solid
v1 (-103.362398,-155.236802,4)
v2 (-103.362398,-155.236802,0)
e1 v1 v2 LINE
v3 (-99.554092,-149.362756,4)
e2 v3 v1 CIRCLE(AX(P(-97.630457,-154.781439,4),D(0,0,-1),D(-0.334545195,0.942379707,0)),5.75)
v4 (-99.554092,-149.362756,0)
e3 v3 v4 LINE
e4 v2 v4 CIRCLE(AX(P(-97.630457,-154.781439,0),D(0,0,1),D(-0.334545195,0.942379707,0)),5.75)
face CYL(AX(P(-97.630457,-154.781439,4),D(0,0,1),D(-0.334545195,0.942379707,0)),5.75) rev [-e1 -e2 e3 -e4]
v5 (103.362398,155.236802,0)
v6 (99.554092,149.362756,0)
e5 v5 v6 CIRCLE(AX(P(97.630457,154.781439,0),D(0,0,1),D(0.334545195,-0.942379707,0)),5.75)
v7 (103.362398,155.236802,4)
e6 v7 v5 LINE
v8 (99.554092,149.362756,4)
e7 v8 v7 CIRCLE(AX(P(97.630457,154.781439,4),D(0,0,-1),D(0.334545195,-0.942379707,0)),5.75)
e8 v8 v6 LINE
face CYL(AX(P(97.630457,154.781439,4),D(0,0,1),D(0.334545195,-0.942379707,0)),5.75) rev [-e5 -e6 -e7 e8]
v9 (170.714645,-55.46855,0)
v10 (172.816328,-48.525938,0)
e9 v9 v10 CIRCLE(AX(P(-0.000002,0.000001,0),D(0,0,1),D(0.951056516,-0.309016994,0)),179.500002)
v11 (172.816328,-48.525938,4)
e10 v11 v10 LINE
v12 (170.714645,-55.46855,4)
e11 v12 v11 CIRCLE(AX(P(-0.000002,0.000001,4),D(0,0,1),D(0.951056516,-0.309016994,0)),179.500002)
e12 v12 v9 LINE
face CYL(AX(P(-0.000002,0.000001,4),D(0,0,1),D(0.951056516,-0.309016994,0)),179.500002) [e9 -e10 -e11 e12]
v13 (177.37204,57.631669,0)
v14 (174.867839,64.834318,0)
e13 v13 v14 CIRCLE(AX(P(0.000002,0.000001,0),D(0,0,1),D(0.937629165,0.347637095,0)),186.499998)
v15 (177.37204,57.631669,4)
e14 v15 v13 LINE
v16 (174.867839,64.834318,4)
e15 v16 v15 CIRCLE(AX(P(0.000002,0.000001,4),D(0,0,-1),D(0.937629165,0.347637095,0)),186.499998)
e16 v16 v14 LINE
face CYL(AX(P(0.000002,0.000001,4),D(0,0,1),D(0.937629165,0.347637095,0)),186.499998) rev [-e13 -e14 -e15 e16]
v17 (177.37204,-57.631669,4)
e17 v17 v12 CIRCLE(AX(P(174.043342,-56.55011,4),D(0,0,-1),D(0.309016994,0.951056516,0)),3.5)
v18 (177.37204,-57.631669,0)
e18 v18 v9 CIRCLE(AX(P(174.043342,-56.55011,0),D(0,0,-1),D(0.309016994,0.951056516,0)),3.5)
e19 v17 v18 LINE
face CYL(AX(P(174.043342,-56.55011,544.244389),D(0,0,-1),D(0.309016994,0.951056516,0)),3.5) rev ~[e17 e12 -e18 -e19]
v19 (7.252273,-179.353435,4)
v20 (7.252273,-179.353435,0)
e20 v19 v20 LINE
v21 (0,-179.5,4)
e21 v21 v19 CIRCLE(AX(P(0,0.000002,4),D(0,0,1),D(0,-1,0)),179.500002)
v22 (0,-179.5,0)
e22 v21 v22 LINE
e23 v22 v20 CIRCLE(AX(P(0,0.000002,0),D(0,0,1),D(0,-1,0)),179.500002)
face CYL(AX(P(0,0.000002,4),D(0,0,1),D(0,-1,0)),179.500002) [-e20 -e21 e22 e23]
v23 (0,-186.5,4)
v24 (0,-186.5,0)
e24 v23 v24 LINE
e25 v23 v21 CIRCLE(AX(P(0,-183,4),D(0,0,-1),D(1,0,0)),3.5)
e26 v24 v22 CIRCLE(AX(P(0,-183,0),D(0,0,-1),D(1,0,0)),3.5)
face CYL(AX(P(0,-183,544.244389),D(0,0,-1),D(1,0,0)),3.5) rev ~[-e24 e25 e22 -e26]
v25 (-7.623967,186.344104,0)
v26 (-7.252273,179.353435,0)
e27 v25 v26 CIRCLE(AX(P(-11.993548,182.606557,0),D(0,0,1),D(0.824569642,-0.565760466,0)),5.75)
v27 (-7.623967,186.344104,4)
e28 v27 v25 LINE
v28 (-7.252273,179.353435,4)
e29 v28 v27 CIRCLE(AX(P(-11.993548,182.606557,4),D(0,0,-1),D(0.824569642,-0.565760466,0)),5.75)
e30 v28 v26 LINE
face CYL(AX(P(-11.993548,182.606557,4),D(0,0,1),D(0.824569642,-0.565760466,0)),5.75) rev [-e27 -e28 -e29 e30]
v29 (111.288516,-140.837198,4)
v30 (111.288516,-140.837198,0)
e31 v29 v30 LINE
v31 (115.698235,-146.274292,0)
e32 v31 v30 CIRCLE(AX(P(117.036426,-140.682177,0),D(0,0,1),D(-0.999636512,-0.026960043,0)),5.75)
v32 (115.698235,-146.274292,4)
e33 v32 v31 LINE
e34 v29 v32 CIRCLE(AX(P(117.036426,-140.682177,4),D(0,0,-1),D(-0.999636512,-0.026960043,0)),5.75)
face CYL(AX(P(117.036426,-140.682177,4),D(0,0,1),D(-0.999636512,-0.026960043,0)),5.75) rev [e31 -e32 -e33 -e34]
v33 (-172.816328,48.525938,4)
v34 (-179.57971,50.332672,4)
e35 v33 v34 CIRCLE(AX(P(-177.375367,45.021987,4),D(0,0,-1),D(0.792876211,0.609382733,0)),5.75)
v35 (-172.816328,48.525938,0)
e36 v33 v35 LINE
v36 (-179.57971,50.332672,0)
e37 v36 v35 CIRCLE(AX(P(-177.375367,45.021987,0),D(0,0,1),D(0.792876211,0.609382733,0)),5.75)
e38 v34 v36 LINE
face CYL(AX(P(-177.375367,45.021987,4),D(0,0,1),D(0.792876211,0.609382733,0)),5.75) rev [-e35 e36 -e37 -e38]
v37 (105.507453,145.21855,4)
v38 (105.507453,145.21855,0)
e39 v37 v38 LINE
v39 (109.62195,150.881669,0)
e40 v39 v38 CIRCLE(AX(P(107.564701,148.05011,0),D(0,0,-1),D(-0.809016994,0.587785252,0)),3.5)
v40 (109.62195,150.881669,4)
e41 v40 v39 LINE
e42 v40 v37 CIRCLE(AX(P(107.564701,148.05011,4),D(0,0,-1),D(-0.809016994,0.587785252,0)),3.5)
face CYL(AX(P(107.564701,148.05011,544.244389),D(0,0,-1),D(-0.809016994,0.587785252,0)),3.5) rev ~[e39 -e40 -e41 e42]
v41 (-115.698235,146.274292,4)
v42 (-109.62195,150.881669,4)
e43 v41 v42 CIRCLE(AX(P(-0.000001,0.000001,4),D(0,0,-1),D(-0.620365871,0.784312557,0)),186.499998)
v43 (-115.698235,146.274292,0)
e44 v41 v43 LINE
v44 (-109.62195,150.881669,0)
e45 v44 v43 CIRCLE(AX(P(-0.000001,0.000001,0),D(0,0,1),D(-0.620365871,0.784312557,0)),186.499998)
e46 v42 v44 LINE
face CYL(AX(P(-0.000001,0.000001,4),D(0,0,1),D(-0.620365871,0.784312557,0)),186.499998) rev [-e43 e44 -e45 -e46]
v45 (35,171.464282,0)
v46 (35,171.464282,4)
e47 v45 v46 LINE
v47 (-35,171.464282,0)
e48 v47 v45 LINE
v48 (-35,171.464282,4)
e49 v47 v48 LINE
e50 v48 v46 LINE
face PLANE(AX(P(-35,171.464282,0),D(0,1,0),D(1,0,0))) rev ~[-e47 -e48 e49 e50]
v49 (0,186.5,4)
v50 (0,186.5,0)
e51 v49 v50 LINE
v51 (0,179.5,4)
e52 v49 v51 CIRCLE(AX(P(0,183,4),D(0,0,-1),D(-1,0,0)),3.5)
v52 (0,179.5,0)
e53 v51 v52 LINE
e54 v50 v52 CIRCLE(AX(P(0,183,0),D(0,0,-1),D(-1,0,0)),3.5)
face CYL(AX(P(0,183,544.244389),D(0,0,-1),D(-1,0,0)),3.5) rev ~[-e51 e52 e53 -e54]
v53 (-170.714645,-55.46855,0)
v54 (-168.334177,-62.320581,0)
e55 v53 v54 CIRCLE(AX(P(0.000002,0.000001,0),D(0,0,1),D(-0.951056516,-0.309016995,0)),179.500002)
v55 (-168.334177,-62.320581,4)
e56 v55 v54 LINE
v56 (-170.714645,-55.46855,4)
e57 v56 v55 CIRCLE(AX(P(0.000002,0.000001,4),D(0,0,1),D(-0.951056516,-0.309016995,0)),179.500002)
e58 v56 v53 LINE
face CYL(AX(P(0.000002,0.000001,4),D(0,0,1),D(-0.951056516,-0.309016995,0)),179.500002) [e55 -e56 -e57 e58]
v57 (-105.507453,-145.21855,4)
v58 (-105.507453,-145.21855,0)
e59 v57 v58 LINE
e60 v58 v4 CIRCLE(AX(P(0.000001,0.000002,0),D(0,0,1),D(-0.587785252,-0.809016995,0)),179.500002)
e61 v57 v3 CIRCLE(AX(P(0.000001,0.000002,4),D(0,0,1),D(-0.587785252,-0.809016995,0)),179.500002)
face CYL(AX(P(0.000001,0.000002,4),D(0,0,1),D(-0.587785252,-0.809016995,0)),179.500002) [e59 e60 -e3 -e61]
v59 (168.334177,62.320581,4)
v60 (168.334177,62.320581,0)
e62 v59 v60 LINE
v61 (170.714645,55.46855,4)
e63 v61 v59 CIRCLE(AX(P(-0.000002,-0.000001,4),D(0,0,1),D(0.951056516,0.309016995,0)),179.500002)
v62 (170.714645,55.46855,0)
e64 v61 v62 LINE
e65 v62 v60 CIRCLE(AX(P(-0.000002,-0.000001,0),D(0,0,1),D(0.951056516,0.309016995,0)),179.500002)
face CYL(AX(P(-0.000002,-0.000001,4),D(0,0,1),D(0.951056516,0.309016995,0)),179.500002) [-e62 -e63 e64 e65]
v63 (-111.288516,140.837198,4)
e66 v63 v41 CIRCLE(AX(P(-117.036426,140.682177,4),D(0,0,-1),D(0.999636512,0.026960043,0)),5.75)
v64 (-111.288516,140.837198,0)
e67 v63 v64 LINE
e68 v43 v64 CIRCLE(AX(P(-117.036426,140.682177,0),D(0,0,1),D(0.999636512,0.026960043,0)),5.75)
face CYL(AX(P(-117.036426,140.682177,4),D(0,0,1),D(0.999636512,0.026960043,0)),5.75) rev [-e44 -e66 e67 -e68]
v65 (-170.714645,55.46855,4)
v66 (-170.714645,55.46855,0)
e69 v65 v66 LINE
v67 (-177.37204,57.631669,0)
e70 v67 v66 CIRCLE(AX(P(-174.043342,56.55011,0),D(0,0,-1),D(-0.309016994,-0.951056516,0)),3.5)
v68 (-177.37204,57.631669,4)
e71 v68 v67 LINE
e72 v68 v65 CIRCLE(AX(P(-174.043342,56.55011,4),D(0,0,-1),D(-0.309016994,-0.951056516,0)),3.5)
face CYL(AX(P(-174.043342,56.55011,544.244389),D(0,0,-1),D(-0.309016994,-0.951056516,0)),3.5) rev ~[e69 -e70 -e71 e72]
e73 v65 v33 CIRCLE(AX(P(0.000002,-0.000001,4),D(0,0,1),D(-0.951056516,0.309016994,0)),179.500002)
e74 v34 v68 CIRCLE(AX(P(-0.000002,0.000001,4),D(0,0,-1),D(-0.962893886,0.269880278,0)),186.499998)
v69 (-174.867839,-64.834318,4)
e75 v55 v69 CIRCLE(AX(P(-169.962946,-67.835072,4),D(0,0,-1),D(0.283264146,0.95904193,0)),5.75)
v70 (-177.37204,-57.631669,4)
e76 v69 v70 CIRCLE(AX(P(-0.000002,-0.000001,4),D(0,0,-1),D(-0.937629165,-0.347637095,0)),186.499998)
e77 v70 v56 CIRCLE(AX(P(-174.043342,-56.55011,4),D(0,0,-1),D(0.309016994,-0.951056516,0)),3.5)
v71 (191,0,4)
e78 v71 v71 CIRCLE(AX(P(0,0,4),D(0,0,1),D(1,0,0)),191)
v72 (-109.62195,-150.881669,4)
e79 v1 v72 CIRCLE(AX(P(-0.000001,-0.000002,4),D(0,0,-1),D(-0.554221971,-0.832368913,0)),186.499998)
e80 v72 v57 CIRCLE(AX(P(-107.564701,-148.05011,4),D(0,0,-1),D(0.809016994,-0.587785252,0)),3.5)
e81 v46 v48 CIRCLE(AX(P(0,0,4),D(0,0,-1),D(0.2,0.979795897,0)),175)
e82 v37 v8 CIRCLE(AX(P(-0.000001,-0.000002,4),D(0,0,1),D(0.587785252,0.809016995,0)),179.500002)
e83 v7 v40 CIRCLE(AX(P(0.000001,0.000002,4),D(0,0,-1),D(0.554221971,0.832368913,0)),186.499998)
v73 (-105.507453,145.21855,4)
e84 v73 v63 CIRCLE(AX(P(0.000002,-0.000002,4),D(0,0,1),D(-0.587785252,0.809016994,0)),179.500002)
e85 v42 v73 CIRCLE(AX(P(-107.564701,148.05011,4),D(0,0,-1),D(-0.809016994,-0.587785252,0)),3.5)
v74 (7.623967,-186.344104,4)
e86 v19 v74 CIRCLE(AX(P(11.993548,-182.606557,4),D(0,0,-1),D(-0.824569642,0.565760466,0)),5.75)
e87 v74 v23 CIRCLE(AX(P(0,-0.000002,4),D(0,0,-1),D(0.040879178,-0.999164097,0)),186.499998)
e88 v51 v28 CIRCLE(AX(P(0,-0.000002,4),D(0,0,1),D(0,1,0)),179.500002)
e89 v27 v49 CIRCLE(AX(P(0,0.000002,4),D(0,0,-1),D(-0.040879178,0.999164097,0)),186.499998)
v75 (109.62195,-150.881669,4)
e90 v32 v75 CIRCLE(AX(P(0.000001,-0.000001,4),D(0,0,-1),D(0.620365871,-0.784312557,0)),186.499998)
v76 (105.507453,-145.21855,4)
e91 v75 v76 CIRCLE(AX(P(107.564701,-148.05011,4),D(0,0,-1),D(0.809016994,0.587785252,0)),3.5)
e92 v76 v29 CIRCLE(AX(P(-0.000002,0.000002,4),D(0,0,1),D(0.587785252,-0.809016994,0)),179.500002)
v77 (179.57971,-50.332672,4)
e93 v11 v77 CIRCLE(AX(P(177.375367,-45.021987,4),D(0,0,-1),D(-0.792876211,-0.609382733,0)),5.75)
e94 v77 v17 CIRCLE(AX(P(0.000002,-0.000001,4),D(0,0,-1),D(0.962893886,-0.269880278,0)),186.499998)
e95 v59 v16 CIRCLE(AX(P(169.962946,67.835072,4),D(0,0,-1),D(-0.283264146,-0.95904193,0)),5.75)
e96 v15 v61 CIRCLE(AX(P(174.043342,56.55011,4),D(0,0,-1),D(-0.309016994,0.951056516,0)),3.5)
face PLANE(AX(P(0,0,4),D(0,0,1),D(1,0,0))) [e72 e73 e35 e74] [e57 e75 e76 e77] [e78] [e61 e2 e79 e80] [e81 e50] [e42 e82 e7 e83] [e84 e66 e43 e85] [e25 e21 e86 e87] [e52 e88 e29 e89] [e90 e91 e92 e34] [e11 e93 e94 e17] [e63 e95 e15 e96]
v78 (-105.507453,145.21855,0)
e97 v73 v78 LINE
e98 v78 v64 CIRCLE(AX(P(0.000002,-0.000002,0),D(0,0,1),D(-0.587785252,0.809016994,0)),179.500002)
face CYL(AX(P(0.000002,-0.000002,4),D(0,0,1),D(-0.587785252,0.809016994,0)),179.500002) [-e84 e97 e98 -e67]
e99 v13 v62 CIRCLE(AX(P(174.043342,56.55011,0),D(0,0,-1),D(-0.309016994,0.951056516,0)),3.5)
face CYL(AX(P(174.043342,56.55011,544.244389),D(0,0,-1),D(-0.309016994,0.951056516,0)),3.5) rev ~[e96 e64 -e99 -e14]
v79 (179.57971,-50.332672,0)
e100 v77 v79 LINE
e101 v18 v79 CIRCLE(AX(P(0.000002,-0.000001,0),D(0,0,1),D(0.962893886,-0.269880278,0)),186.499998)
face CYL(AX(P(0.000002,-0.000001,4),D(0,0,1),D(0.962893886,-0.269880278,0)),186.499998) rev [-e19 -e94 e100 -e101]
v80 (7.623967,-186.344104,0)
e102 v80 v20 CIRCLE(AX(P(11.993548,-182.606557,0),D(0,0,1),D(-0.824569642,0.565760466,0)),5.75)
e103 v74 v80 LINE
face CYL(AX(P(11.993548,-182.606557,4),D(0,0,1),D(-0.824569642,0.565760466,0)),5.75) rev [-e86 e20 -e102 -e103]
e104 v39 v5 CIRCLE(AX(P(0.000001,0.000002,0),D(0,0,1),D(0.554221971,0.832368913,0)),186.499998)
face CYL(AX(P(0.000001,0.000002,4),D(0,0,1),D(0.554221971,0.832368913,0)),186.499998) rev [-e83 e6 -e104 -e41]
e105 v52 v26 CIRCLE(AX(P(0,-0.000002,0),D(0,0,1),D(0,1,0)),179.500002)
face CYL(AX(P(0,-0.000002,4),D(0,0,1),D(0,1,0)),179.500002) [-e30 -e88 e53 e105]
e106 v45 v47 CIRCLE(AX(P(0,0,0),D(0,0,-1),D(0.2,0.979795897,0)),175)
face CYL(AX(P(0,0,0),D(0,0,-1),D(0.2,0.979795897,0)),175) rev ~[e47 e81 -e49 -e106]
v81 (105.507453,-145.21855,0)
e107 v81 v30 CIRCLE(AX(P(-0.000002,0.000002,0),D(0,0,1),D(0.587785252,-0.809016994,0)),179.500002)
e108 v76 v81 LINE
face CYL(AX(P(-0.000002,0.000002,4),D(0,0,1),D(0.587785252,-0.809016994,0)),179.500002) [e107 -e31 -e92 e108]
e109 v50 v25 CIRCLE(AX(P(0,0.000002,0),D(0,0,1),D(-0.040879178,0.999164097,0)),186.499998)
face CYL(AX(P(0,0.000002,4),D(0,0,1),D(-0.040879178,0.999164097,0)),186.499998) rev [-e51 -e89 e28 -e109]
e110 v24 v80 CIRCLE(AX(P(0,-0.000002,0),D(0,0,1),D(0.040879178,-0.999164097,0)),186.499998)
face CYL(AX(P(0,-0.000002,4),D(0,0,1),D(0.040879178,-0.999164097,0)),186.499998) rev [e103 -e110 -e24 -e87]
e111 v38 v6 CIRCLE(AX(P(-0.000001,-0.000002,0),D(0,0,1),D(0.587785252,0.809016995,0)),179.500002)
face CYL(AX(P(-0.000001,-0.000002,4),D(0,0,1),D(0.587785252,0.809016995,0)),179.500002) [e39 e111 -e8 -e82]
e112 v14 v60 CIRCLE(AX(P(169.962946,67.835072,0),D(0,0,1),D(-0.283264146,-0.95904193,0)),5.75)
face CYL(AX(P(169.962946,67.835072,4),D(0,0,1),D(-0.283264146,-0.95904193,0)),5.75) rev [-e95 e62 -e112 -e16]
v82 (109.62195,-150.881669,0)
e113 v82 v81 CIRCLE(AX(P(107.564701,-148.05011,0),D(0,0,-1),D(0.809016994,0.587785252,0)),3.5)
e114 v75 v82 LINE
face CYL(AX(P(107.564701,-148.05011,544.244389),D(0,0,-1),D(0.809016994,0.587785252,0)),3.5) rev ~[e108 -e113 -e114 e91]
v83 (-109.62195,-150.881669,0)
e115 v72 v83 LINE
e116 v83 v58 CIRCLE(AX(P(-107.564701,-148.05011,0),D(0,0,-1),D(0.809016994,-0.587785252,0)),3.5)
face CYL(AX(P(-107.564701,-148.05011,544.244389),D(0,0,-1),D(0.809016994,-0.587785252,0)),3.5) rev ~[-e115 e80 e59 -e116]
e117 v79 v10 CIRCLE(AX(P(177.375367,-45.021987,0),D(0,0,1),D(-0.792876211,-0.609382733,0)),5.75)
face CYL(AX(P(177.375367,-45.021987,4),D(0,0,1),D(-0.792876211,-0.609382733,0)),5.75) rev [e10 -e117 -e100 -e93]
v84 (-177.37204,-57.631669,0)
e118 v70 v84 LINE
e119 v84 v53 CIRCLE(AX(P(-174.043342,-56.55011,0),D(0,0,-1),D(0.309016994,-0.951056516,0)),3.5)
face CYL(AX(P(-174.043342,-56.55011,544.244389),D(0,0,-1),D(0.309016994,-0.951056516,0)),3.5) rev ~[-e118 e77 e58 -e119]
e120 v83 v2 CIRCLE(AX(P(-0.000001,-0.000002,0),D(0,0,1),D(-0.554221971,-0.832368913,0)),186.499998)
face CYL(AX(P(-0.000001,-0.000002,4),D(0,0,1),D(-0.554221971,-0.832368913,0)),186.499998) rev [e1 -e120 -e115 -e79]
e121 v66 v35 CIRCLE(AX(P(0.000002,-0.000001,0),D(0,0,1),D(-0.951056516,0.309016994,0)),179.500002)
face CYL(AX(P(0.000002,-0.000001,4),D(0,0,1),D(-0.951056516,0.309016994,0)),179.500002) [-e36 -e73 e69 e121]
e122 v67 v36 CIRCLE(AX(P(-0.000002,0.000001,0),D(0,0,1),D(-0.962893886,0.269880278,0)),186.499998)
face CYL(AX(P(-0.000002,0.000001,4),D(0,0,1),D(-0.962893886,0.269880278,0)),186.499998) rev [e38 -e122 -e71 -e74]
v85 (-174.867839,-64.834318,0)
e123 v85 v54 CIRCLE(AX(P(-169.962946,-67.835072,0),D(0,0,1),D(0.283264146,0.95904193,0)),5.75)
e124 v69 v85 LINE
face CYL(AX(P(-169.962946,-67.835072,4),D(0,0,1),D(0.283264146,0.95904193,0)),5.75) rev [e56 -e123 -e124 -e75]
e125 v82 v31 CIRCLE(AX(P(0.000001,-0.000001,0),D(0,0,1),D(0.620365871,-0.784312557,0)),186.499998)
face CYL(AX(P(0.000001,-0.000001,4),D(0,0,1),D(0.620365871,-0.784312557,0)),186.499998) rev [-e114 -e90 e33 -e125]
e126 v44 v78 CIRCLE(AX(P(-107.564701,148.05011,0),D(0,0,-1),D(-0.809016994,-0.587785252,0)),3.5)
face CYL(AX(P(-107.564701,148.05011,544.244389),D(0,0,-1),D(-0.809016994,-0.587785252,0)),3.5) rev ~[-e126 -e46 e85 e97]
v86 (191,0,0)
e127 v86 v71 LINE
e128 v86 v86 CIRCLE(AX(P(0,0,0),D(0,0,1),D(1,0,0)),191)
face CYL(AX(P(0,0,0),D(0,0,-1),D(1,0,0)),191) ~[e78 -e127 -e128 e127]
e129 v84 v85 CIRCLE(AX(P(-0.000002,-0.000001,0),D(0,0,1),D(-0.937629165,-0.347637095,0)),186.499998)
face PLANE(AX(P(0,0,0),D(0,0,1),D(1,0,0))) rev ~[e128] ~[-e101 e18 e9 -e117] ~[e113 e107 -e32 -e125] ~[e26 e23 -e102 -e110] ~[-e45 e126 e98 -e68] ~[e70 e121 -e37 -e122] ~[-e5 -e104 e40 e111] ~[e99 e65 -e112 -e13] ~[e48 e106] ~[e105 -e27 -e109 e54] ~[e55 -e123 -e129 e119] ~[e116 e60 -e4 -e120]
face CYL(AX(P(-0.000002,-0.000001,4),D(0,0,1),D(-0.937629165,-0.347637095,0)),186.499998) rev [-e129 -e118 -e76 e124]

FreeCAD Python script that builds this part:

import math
import FreeCAD as App
import Part
import Sketcher
from FreeCAD import Vector

doc = App.newDocument("Part")
body = doc.addObject("PartDesign::Body", "Body")

# Sketch on XY plane
sketch1 = body.newObject("Sketcher::SketchObject", "Sketch")
sketch1.AttachmentSupport = (doc.getObject("XY_Plane"), [""])
sketch1.MapMode = "FlatFace"
sketch1.addGeometry([
    Part.Circle(Vector(0, 0, 0), Vector(0, 0, 1), 191),
    Part.ArcOfCircle(Part.Circle(Vector(0, 0, 0), Vector(0, 0, 1), 175), math.radians(101.536959), math.radians(438.463041)),
    Part.LineSegment(Vector(-35, 171.464282, 0), Vector(35, 171.464282, 0)),
], False)
sketch1.addConstraint([
    Sketcher.Constraint("Coincident", 1, 1, 2, 1),
    Sketcher.Constraint("Coincident", 2, 2, 1, 2),
    Sketcher.Constraint("Horizontal", 2),
    Sketcher.Constraint("Coincident", 0, 3, -1, 1),
    Sketcher.Constraint("Coincident", 1, 3, -1, 1),
    Sketcher.Constraint("Diameter", 0, 382.0),
    Sketcher.Constraint("Radius", 1, 175.0),
    Sketcher.Constraint("DistanceX", 2, 1, 2, 2, 70.0),
])
pad1 = body.newObject("PartDesign::Pad", "Pad")
pad1.Profile = sketch1
pad1.Length = 4

# Sketch on XY plane
sketch2 = body.newObject("Sketcher::SketchObject", "Sketch001")
sketch2.AttachmentSupport = (doc.getObject("XY_Plane"), [""])
sketch2.MapMode = "FlatFace"
sketch2.AttachmentOffset = App.Placement(Vector(0, 0, 4), App.Rotation())
sketch2.addGeometry(Part.Circle(Vector(0, 183, 0), Vector(0, 0, 1), 3.5), False)
sketch2.addConstraint([
    Sketcher.Constraint("PointOnObject", 0, 3, -2),
    Sketcher.Constraint("Diameter", 0, 7.0),
    Sketcher.Constraint("DistanceY", -1, 1, 0, 3, 183.0),
])
doc.recompute()
hole = body.newObject("PartDesign::Hole", "Hole")
hole.Profile = sketch2
hole.ThreadType = "None"
hole.Diameter = 7
hole.DepthType = "ThroughAll"

# Sketch on XY plane
sketch3 = body.newObject("Sketcher::SketchObject", "Sketch002")
sketch3.AttachmentSupport = (doc.getObject("XY_Plane"), [""])
sketch3.MapMode = "FlatFace"
sketch3.AttachmentOffset = App.Placement(Vector(0, 0, 4), App.Rotation())
sketch3.addGeometry([
    Part.LineSegment(Vector(0, 179.5, 0), Vector(0, 186.5, 0)),
    Part.ArcOfCircle(Part.Circle(Vector(0, 0.000002, 0), Vector(0, 0, 1), 186.499998), math.radians(90), math.radians(92.342857)),
    Part.ArcOfCircle(Part.Circle(Vector(-11.993548, 182.606557, 0), Vector(0, 0, 1), 5.75), math.radians(40.542215), math.radians(325.544884)),
    Part.ArcOfCircle(Part.Circle(Vector(0, -0.000002, 0), Vector(0, 0, 1), 179.500002), math.radians(90), math.radians(92.315531)),
], False)
sketch3.addConstraint([
    Sketcher.Constraint("Coincident", 0, 2, 1, 1),
    Sketcher.Constraint("Coincident", 1, 2, 2, 1),
    Sketcher.Constraint("Coincident", 2, 2, 3, 2),
    Sketcher.Constraint("Coincident", 3, 1, 0, 1),
    Sketcher.Constraint("Vertical", 0),
    Sketcher.Constraint("Coincident", 1, 3, -1, 1),
    Sketcher.Constraint("Coincident", 3, 3, -1, 1),
    Sketcher.Constraint("PointOnObject", 0, 2, -2),
    Sketcher.Constraint("Radius", 1, 186.499998),
    Sketcher.Constraint("DistanceY", 0, 1, 0, 2, 7.0),
    Sketcher.Constraint("Radius", 2, 5.75),
    Sketcher.Constraint("DistanceX", 2, 3, -1, 1, 11.993548),
    Sketcher.Constraint("DistanceY", 3, 3, 2, 3, 182.60656),
])
pocket1 = body.newObject("PartDesign::Pocket", "Pocket")
pocket1.Profile = sketch3
pocket1.Type = "ThroughAll"
doc.recompute()

polarpattern = body.newObject("PartDesign::PolarPattern", "PolarPattern")
polarpattern.Originals = [hole, pocket1]
polarpattern.Axis = (doc.getObject("Z_Axis"), [""])
polarpattern.Angle = 360
polarpattern.Occurrences = 10
body.Tip = polarpattern

doc.recompute()
